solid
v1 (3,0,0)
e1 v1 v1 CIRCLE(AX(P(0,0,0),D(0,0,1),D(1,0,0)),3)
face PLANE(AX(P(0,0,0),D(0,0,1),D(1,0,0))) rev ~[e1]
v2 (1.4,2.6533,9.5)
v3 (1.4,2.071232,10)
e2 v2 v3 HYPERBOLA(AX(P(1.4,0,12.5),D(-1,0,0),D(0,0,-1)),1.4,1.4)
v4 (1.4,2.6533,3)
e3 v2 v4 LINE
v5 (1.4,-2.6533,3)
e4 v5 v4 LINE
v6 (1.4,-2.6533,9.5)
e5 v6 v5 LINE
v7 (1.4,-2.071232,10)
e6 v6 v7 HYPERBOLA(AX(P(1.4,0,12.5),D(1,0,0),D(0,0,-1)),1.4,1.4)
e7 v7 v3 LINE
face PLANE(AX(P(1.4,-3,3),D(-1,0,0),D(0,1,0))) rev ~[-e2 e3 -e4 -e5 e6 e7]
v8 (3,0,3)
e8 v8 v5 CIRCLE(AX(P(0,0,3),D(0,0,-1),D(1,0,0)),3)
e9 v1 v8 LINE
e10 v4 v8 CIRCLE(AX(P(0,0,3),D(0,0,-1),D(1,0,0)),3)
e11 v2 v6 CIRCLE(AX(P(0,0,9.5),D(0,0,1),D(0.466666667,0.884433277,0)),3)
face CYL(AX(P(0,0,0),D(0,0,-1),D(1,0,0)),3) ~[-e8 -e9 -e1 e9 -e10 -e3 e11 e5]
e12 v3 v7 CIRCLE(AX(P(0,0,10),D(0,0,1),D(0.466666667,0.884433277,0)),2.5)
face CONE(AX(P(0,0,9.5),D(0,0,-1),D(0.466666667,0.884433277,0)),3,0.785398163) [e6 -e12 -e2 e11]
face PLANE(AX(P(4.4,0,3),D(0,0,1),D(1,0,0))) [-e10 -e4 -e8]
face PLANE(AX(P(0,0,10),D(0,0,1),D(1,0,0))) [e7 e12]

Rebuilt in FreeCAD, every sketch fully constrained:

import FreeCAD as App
import Part
import Sketcher

V = App.Vector


def edges_at(feature, points):
    """Names of the edges that pass closest to the given points."""
    edges = feature.Shape.Edges
    near = lambda p: min(range(len(edges)), key=lambda i: edges[i].distToShape(Part.Vertex(*p))[0])
    return sorted({f"Edge{near(p) + 1}" for p in points})

doc = App.newDocument("Part")
body = doc.addObject("PartDesign::Body", "Body")

sketch1 = body.newObject("Sketcher::SketchObject", "Sketch")
sketch1.AttachmentSupport = (doc.getObject("XY_Plane"), [""])
sketch1.MapMode = "FlatFace"
sketch1.AttachmentOffset = App.Placement(V(0, 0, 3), App.Rotation())
sketch1.addGeometry(Part.LineSegment(V(1, 3, 0), V(1, -3, 0)), False)
sketch1.addGeometry(Part.LineSegment(V(1, -3, 0), V(7, -3, 0)), False)
sketch1.addGeometry(Part.LineSegment(V(7, -3, 0), V(7, 3, 0)), False)
sketch1.addGeometry(Part.LineSegment(V(7, 3, 0), V(1, 3, 0)), False)
sketch1.addConstraint(Sketcher.Constraint("Coincident", 0, 2, 1, 1))
sketch1.addConstraint(Sketcher.Constraint("Coincident", 1, 2, 2, 1))
sketch1.addConstraint(Sketcher.Constraint("Coincident", 2, 2, 3, 1))
sketch1.addConstraint(Sketcher.Constraint("Coincident", 3, 2, 0, 1))
sketch1.addConstraint(Sketcher.Constraint("Vertical", 0))
sketch1.addConstraint(Sketcher.Constraint("Horizontal", 1))
sketch1.addConstraint(Sketcher.Constraint("Vertical", 2))
sketch1.addConstraint(Sketcher.Constraint("Horizontal", 3))
sketch1.addConstraint(Sketcher.Constraint("Equal", 3, 0))
sketch1.addConstraint(Sketcher.Constraint("DistanceX", 1, 1, 1, 2, 6.0))
sketch1.addConstraint(Sketcher.Constraint("DistanceY", 0, 2, -1, 1, 3.0))
sketch1.addConstraint(Sketcher.Constraint("DistanceX", -1, 1, 0, 2, 1.4))
pad1 = body.newObject("PartDesign::Pad", "Pad")
pad1.Profile = sketch1
pad1.Length = 7
body2 = doc.addObject("PartDesign::Body", "Body001")

sketch2 = body2.newObject("Sketcher::SketchObject", "Sketch001")
sketch2.AttachmentSupport = (doc.getObject("XY_Plane001"), [""])
sketch2.MapMode = "FlatFace"
sketch2.addGeometry(Part.Circle(V(0, 0, 0), V(0, 0, 1), 3), False)
sketch2.addConstraint(Sketcher.Constraint("Coincident", 0, 3, -1, 1))
sketch2.addConstraint(Sketcher.Constraint("Diameter", 0, 6.0))
pad2 = body2.newObject("PartDesign::Pad", "Pad001")
pad2.Profile = sketch2
pad2.Length = 10
doc.recompute()

boolean = body2.newObject("PartDesign::Boolean", "Boolean")
boolean.Type = "Cut"
boolean.addObjects([body])
doc.recompute()

chamfer = body2.newObject("PartDesign::Chamfer", "Chamfer")
chamfer.Base = (boolean, edges_at(boolean, [(-3, 0, 10)]))
chamfer.Size = 0.5

doc.recompute()
